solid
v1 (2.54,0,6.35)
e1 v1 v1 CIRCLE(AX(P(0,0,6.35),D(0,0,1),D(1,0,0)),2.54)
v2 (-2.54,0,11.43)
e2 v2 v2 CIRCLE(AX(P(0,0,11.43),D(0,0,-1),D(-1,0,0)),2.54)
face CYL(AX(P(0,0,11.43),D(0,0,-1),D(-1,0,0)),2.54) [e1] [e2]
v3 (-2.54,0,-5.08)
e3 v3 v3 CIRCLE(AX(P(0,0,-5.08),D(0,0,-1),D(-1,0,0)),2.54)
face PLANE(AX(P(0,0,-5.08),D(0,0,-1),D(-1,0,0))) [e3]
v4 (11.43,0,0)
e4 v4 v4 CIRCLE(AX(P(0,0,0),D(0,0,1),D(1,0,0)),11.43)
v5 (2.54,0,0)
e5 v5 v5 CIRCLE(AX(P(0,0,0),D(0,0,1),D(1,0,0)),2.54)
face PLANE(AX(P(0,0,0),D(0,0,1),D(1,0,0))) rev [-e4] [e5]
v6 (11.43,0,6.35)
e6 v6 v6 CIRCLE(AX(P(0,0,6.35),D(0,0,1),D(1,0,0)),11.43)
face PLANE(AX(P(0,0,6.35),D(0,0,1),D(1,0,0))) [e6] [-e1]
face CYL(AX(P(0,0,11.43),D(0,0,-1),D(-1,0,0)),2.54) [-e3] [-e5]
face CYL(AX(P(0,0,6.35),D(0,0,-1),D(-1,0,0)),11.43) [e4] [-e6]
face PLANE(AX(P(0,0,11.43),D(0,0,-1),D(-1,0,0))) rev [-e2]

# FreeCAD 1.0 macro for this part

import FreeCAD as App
import Part
import Sketcher
Q = App.Units.Quantity

doc = App.newDocument("Part")
body = doc.addObject("PartDesign::Body", "Body")

sketch1 = doc.addObject("Sketcher::SketchObject", "Sketch")
body.addObject(sketch1)
sketch1.AttachmentSupport = (doc.XY_Plane, [""])
sketch1.MapMode = "FlatFace"
sketch1.addGeometry(Part.Circle(App.Vector(0, 0, 0), App.Vector(0, 0, 1), 11), False)
sketch1.addConstraint(Sketcher.Constraint("Coincident", 0, 3, -1, 1))
sketch1.addConstraint(Sketcher.Constraint("Diameter", 0, Q("0.9 in")))
pad1 = doc.addObject("PartDesign::Pad", "Pad")
body.addObject(pad1)
pad1.Profile = sketch1
pad1.Length = Q("0.25 in")

sketch2 = doc.addObject("Sketcher::SketchObject", "Sketch001")
body.addObject(sketch2)
sketch2.AttachmentSupport = (doc.XY_Plane, [""])
sketch2.MapMode = "FlatFace"
sketch2.addGeometry(Part.Circle(App.Vector(0, 0, 0), App.Vector(0, 0, 1), 2.5), False)
sketch2.addConstraint(Sketcher.Constraint("Coincident", 0, 3, -1, 1))
sketch2.addConstraint(Sketcher.Constraint("Diameter", 0, Q("0.2 in")))
pad2 = doc.addObject("PartDesign::Pad", "Pad001")
body.addObject(pad2)
pad2.Profile = sketch2
pad2.Type = "TwoLengths"
pad2.Length = Q("0.2 in")
pad2.Length2 = Q("0.45 in")
pad2.Reversed = True

doc.recompute()
